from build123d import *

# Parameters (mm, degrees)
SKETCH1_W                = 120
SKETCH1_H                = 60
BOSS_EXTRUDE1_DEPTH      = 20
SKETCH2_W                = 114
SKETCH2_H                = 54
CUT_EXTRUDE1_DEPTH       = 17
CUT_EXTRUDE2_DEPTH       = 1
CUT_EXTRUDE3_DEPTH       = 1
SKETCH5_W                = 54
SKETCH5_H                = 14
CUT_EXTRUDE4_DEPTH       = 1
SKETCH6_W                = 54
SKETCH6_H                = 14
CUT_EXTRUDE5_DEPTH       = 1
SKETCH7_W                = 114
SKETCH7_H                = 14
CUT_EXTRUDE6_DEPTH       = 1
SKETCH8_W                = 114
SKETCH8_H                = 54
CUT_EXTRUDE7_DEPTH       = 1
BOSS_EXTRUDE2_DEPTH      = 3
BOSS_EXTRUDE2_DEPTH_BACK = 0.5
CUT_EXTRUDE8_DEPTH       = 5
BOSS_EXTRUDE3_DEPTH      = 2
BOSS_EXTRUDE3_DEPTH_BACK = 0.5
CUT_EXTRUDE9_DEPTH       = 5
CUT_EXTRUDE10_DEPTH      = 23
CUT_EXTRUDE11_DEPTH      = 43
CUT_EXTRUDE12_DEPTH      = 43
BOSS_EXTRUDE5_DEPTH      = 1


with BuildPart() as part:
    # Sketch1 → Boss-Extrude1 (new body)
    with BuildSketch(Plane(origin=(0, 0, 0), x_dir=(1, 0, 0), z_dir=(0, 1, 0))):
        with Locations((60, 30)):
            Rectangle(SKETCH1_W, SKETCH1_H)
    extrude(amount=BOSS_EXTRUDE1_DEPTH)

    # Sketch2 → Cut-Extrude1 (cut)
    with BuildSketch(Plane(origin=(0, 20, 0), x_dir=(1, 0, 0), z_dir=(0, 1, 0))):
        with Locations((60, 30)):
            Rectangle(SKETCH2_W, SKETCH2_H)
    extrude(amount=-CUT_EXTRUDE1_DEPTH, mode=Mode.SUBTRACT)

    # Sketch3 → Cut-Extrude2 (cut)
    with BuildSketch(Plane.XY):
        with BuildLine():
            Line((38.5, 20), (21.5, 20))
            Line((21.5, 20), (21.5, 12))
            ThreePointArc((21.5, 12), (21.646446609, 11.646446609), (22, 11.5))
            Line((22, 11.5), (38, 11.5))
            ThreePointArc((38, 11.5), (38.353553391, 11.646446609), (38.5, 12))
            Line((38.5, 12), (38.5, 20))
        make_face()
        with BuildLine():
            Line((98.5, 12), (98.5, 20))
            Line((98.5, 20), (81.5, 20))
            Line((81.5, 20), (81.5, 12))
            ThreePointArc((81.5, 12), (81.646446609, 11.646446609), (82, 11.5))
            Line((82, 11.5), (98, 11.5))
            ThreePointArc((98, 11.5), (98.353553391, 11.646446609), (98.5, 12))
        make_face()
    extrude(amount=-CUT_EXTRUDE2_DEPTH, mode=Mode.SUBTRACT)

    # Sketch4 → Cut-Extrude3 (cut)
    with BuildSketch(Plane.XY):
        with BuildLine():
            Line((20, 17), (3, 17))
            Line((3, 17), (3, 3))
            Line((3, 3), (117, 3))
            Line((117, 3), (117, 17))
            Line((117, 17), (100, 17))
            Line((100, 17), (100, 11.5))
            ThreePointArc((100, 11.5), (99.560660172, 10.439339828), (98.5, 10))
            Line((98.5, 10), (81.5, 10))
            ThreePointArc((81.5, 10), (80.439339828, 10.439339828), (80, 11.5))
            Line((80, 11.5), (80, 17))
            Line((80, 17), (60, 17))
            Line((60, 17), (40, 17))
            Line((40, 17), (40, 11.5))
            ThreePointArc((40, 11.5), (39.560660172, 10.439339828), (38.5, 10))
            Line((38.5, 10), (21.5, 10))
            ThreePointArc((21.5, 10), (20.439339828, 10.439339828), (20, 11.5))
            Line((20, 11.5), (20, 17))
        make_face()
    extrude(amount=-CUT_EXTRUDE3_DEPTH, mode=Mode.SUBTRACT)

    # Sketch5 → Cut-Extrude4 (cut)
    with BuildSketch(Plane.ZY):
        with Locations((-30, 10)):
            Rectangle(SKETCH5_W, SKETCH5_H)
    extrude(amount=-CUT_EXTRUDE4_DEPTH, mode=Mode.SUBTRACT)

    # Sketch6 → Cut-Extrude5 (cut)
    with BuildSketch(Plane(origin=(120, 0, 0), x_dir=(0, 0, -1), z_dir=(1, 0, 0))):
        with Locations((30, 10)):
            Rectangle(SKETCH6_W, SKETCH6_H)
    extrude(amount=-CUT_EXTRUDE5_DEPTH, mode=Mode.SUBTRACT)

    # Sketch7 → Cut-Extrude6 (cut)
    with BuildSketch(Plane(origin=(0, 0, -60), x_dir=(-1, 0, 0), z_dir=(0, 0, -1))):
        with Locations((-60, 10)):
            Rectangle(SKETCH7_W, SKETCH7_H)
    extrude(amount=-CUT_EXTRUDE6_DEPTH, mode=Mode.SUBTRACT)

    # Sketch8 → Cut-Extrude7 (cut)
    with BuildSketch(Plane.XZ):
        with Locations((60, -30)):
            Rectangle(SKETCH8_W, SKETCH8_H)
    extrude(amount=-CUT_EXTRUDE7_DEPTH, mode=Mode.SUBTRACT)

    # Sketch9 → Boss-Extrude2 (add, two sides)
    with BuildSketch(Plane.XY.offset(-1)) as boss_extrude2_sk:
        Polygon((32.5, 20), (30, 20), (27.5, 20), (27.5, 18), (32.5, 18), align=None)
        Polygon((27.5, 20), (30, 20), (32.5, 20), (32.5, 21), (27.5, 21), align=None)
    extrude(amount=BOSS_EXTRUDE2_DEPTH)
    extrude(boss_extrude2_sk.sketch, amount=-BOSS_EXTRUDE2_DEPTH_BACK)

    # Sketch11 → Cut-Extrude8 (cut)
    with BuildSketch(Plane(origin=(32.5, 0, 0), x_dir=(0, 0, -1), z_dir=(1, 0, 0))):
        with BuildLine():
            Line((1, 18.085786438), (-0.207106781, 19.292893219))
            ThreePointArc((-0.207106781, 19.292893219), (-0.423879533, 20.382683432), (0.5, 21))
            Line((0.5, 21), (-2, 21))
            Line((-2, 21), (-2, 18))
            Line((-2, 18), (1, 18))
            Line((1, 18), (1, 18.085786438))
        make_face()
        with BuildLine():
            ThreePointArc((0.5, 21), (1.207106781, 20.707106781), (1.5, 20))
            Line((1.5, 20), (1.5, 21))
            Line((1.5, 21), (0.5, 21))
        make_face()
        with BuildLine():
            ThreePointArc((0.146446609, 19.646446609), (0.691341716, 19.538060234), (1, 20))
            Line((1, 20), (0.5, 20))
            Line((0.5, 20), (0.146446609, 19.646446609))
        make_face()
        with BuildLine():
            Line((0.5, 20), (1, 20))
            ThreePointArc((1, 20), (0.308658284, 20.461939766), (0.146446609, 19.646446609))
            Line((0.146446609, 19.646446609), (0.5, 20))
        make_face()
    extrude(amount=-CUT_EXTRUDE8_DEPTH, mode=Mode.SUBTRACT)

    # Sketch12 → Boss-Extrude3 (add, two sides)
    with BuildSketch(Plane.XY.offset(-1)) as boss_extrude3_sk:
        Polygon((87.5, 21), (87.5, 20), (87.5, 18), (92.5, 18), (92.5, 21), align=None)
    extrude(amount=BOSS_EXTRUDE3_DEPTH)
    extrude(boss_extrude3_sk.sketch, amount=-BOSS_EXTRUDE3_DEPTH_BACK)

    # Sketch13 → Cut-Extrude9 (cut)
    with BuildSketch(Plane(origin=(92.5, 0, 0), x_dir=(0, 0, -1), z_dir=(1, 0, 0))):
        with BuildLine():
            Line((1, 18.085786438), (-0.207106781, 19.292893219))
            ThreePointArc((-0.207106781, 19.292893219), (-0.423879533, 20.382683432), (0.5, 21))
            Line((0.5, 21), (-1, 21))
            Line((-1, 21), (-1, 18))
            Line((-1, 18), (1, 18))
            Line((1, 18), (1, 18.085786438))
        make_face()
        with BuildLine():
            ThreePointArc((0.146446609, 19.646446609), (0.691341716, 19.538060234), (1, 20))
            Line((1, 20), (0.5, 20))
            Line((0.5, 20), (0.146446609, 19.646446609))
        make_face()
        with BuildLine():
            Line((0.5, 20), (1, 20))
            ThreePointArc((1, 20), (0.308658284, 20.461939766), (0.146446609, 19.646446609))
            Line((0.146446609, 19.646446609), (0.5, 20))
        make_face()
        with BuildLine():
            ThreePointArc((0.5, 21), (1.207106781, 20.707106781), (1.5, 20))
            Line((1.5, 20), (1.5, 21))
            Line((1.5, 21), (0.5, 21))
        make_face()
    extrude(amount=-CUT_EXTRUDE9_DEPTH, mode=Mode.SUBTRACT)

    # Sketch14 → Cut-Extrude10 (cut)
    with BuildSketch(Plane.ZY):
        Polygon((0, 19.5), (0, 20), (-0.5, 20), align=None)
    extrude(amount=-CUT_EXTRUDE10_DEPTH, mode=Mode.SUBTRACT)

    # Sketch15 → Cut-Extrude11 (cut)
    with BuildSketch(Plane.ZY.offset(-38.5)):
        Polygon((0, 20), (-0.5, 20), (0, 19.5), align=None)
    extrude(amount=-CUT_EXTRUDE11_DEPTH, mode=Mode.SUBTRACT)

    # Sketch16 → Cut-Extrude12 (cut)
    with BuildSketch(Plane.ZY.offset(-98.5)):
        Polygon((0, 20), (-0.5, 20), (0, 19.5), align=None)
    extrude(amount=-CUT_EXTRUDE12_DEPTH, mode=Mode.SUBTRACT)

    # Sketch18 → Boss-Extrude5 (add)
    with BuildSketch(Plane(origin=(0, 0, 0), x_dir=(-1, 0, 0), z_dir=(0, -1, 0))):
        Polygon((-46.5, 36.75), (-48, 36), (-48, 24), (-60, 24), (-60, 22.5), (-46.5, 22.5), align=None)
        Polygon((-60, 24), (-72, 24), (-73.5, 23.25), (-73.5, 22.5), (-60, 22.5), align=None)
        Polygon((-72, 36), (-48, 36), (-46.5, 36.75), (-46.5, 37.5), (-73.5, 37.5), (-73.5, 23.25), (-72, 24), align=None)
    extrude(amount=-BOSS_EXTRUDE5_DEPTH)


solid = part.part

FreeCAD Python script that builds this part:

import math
import FreeCAD as App
import Part
import Sketcher
Q = App.Units.Quantity


def add_polygon(sketch, points):
    """Adds a closed chain of lines whose ends are joined by coincident constraints."""
    first, n = sketch.GeometryCount, len(points)
    for a, b in zip(points, points[1:] + points[:1]):
        sketch.addGeometry(Part.LineSegment(App.Vector(*a, 0), App.Vector(*b, 0)), False)
    for i in range(n):
        sketch.addConstraint(Sketcher.Constraint("Coincident", first + i, 2, first + (i + 1) % n, 1))

doc = App.newDocument("Part")
body = doc.addObject("PartDesign::Body", "Body")

sketch1 = body.newObject("Sketcher::SketchObject", "Sketch")
sketch1.AttachmentSupport = (doc.getObject("XZ_Plane"), [""])
sketch1.MapMode = "FlatFace"
add_polygon(sketch1, [(0, -60), (0, 0), (120, 0), (120, -60)])
sketch1.addConstraint([
    Sketcher.Constraint("Vertical", 0),
    Sketcher.Constraint("Horizontal", 1),
    Sketcher.Constraint("Vertical", 2),
    Sketcher.Constraint("Horizontal", 3),
    Sketcher.Constraint("Coincident", 0, 2, -1, 1),
    Sketcher.Constraint("DistanceX", 1, 1, 1, 2, Q("120 mm")),
    Sketcher.Constraint("DistanceY", 0, 1, 0, 2, Q("60 mm")),
])
pad1 = body.newObject("PartDesign::Pad", "Pad")
pad1.Profile = sketch1
pad1.Length = 20
pad1.Reversed = True

sketch2 = body.newObject("Sketcher::SketchObject", "Sketch001")
sketch2.AttachmentSupport = (doc.getObject("XZ_Plane"), [""])
sketch2.MapMode = "FlatFace"
sketch2.AttachmentOffset = App.Placement(App.Vector(0, 0, -20), App.Rotation())
add_polygon(sketch2, [(3, -57), (3, -3), (117, -3), (117, -57)])
sketch2.addConstraint([
    Sketcher.Constraint("Vertical", 0),
    Sketcher.Constraint("Horizontal", 1),
    Sketcher.Constraint("Vertical", 2),
    Sketcher.Constraint("Horizontal", 3),
    Sketcher.Constraint("DistanceX", 1, 1, 1, 2, Q("114 mm")),
    Sketcher.Constraint("DistanceY", 0, 1, 0, 2, Q("54 mm")),
    Sketcher.Constraint("DistanceX", -1, 1, 0, 2, Q("3 mm")),
    Sketcher.Constraint("DistanceY", 0, 2, -1, 1, Q("3 mm")),
])
pocket1 = body.newObject("PartDesign::Pocket", "Pocket")
pocket1.Profile = sketch2
pocket1.Length = 17
pocket1.Reversed = True

sketch3 = body.newObject("Sketcher::SketchObject", "Sketch002")
sketch3.AttachmentSupport = (doc.getObject("XY_Plane"), [""])
sketch3.MapMode = "FlatFace"
sketch3.addGeometry([
    Part.LineSegment(App.Vector(38.5, 20, 0), App.Vector(21.5, 20, 0)),
    Part.LineSegment(App.Vector(21.5, 20, 0), App.Vector(21.5, 12, 0)),
    Part.ArcOfCircle(Part.Circle(App.Vector(22, 12, 0), App.Vector(0, 0, 1), 0.5), math.radians(180), math.radians(270)),
    Part.LineSegment(App.Vector(22, 11.5, 0), App.Vector(38, 11.5, 0)),
    Part.ArcOfCircle(Part.Circle(App.Vector(38, 12, 0), App.Vector(0, 0, 1), 0.5), math.radians(-90), math.radians(0)),
    Part.LineSegment(App.Vector(38.5, 12, 0), App.Vector(38.5, 20, 0)),
    Part.LineSegment(App.Vector(98.5, 12, 0), App.Vector(98.5, 20, 0)),
    Part.LineSegment(App.Vector(98.5, 20, 0), App.Vector(81.5, 20, 0)),
    Part.LineSegment(App.Vector(81.5, 20, 0), App.Vector(81.5, 12, 0)),
    Part.ArcOfCircle(Part.Circle(App.Vector(82, 12, 0), App.Vector(0, 0, 1), 0.5), math.radians(180), math.radians(270)),
    Part.LineSegment(App.Vector(82, 11.5, 0), App.Vector(98, 11.5, 0)),
    Part.ArcOfCircle(Part.Circle(App.Vector(98, 12, 0), App.Vector(0, 0, 1), 0.5), math.radians(-90), math.radians(0)),
], False)
sketch3.addConstraint([
    Sketcher.Constraint("Coincident", 0, 2, 1, 1),
    Sketcher.Constraint("Tangent", 1, 2, 2, 1),
    Sketcher.Constraint("Tangent", 2, 2, 3, 1),
    Sketcher.Constraint("Tangent", 3, 2, 4, 1),
    Sketcher.Constraint("Tangent", 4, 2, 5, 1),
    Sketcher.Constraint("Coincident", 5, 2, 0, 1),
    Sketcher.Constraint("Coincident", 6, 2, 7, 1),
    Sketcher.Constraint("Coincident", 7, 2, 8, 1),
    Sketcher.Constraint("Tangent", 8, 2, 9, 1),
    Sketcher.Constraint("Tangent", 9, 2, 10, 1),
    Sketcher.Constraint("Tangent", 10, 2, 11, 1),
    Sketcher.Constraint("Tangent", 11, 2, 6, 1),
    Sketcher.Constraint("Horizontal", 0),
    Sketcher.Constraint("Vertical", 1),
    Sketcher.Constraint("Horizontal", 3),
    Sketcher.Constraint("Vertical", 5),
    Sketcher.Constraint("Vertical", 6),
    Sketcher.Constraint("Horizontal", 7),
    Sketcher.Constraint("Vertical", 8),
    Sketcher.Constraint("Horizontal", 10),
    Sketcher.Constraint("Equal", 2, 4),
    Sketcher.Constraint("Equal", 4, 9),
    Sketcher.Constraint("Equal", 9, 11),
    Sketcher.Constraint("Horizontal", 4, 3, 9, 3),
    Sketcher.Constraint("Horizontal", 5, 2, 6, 2),
    Sketcher.Constraint("Equal", 0, 7),
    Sketcher.Constraint("Radius", 2, Q("0.5 mm")),
    Sketcher.Constraint("DistanceX", 0, 2, 0, 1, Q("17 mm")),
    Sketcher.Constraint("DistanceY", 1, 2, 1, 1, Q("8 mm")),
    Sketcher.Constraint("DistanceX", -1, 1, 2, 3, Q("22 mm")),
    Sketcher.Constraint("DistanceY", -1, 1, 2, 3, Q("12 mm")),
    Sketcher.Constraint("DistanceX", -1, 1, 9, 3, Q("82 mm")),
])
pocket2 = body.newObject("PartDesign::Pocket", "Pocket001")
pocket2.Profile = sketch3
pocket2.Length = 1

sketch4 = body.newObject("Sketcher::SketchObject", "Sketch003")
sketch4.AttachmentSupport = (doc.getObject("XY_Plane"), [""])
sketch4.MapMode = "FlatFace"
sketch4.addGeometry([
    Part.LineSegment(App.Vector(20, 17, 0), App.Vector(3, 17, 0)),
    Part.LineSegment(App.Vector(3, 17, 0), App.Vector(3, 3, 0)),
    Part.LineSegment(App.Vector(3, 3, 0), App.Vector(117, 3, 0)),
    Part.LineSegment(App.Vector(117, 3, 0), App.Vector(117, 17, 0)),
    Part.LineSegment(App.Vector(117, 17, 0), App.Vector(100, 17, 0)),
    Part.LineSegment(App.Vector(100, 17, 0), App.Vector(100, 11.5, 0)),
    Part.ArcOfCircle(Part.Circle(App.Vector(98.5, 11.5, 0), App.Vector(0, 0, 1), 1.5), math.radians(-90), math.radians(0)),
    Part.LineSegment(App.Vector(98.5, 10, 0), App.Vector(81.5, 10, 0)),
    Part.ArcOfCircle(Part.Circle(App.Vector(81.5, 11.5, 0), App.Vector(0, 0, 1), 1.5), math.radians(180), math.radians(270)),
    Part.LineSegment(App.Vector(80, 11.5, 0), App.Vector(80, 17, 0)),
    Part.LineSegment(App.Vector(80, 17, 0), App.Vector(40, 17, 0)),
    Part.LineSegment(App.Vector(40, 17, 0), App.Vector(40, 11.5, 0)),
    Part.ArcOfCircle(Part.Circle(App.Vector(38.5, 11.5, 0), App.Vector(0, 0, 1), 1.5), math.radians(-90), math.radians(0)),
    Part.LineSegment(App.Vector(38.5, 10, 0), App.Vector(21.5, 10, 0)),
    Part.ArcOfCircle(Part.Circle(App.Vector(21.5, 11.5, 0), App.Vector(0, 0, 1), 1.5), math.radians(180), math.radians(270)),
    Part.LineSegment(App.Vector(20, 11.5, 0), App.Vector(20, 17, 0)),
], False)
sketch4.addConstraint([
    Sketcher.Constraint("Coincident", 0, 2, 1, 1),
    Sketcher.Constraint("Coincident", 1, 2, 2, 1),
    Sketcher.Constraint("Coincident", 2, 2, 3, 1),
    Sketcher.Constraint("Coincident", 3, 2, 4, 1),
    Sketcher.Constraint("Coincident", 4, 2, 5, 1),
    Sketcher.Constraint("Tangent", 5, 2, 6, 2),
    Sketcher.Constraint("Tangent", 6, 1, 7, 1),
    Sketcher.Constraint("Tangent", 7, 2, 8, 2),
    Sketcher.Constraint("Tangent", 8, 1, 9, 1),
    Sketcher.Constraint("Coincident", 9, 2, 10, 1),
    Sketcher.Constraint("Coincident", 10, 2, 11, 1),
    Sketcher.Constraint("Tangent", 11, 2, 12, 2),
    Sketcher.Constraint("Tangent", 12, 1, 13, 1),
    Sketcher.Constraint("Tangent", 13, 2, 14, 2),
    Sketcher.Constraint("Tangent", 14, 1, 15, 1),
    Sketcher.Constraint("Coincident", 15, 2, 0, 1),
    Sketcher.Constraint("Horizontal", 0),
    Sketcher.Constraint("Vertical", 1),
    Sketcher.Constraint("Horizontal", 2),
    Sketcher.Constraint("Vertical", 3),
    Sketcher.Constraint("Horizontal", 4),
    Sketcher.Constraint("Vertical", 5),
    Sketcher.Constraint("Horizontal", 7),
    Sketcher.Constraint("Vertical", 9),
    Sketcher.Constraint("Horizontal", 10),
    Sketcher.Constraint("Vertical", 11),
    Sketcher.Constraint("Horizontal", 13),
    Sketcher.Constraint("Vertical", 15),
    Sketcher.Constraint("Equal", 6, 8),
    Sketcher.Constraint("Equal", 8, 12),
    Sketcher.Constraint("Equal", 12, 14),
    Sketcher.Constraint("Horizontal", 8, 3, 12, 3),
    Sketcher.Constraint("Horizontal", 0, 2, 3, 2),
    Sketcher.Constraint("Horizontal", 4, 2, 9, 2),
    Sketcher.Constraint("Equal", 0, 4),
    Sketcher.Constraint("Equal", 4, 7),
    Sketcher.Constraint("Equal", 7, 13),
    Sketcher.Constraint("Radius", 6, Q("1.5 mm")),
    Sketcher.Constraint("DistanceX", 0, 2, 0, 1, Q("17 mm")),
    Sketcher.Constraint("DistanceX", 2, 1, 2, 2, Q("114 mm")),
    Sketcher.Constraint("DistanceY", 1, 2, 1, 1, Q("14 mm")),
    Sketcher.Constraint("DistanceY", 5, 2, 5, 1, Q("5.5 mm")),
    Sketcher.Constraint("DistanceX", -1, 1, 0, 2, Q("3 mm")),
    Sketcher.Constraint("DistanceY", -1, 1, 0, 2, Q("17 mm")),
])
pocket3 = body.newObject("PartDesign::Pocket", "Pocket002")
pocket3.Profile = sketch4
pocket3.Length = 1

sketch5 = body.newObject("Sketcher::SketchObject", "Sketch004")
sketch5.AttachmentSupport = (doc.getObject("YZ_Plane"), [""])
sketch5.MapMode = "FlatFace"
add_polygon(sketch5, [(17, -57), (3, -57), (3, -3), (17, -3)])
sketch5.addConstraint([
    Sketcher.Constraint("Horizontal", 0),
    Sketcher.Constraint("Vertical", 1),
    Sketcher.Constraint("Horizontal", 2),
    Sketcher.Constraint("Vertical", 3),
    Sketcher.Constraint("DistanceX", 0, 2, 0, 1, Q("14 mm")),
    Sketcher.Constraint("DistanceY", 1, 1, 1, 2, Q("54 mm")),
    Sketcher.Constraint("DistanceX", -1, 1, 0, 2, Q("3 mm")),
    Sketcher.Constraint("DistanceY", 0, 2, -1, 1, Q("57 mm")),
])
pocket4 = body.newObject("PartDesign::Pocket", "Pocket003")
pocket4.Profile = sketch5
pocket4.Length = 1
pocket4.Reversed = True

sketch6 = body.newObject("Sketcher::SketchObject", "Sketch005")
sketch6.AttachmentSupport = (doc.getObject("YZ_Plane"), [""])
sketch6.MapMode = "FlatFace"
sketch6.AttachmentOffset = App.Placement(App.Vector(0, 0, 120), App.Rotation())
add_polygon(sketch6, [(17, -3), (3, -3), (3, -57), (17, -57)])
sketch6.addConstraint([
    Sketcher.Constraint("Horizontal", 0),
    Sketcher.Constraint("Vertical", 1),
    Sketcher.Constraint("Horizontal", 2),
    Sketcher.Constraint("Vertical", 3),
    Sketcher.Constraint("DistanceX", 0, 2, 0, 1, Q("14 mm")),
    Sketcher.Constraint("DistanceY", 1, 2, 1, 1, Q("54 mm")),
    Sketcher.Constraint("DistanceX", -1, 1, 0, 2, Q("3 mm")),
    Sketcher.Constraint("DistanceY", 0, 2, -1, 1, Q("3 mm")),
])
pocket5 = body.newObject("PartDesign::Pocket", "Pocket004")
pocket5.Profile = sketch6
pocket5.Length = 1

sketch7 = body.newObject("Sketcher::SketchObject", "Sketch006")
sketch7.AttachmentSupport = (doc.getObject("XY_Plane"), [""])
sketch7.MapMode = "FlatFace"
sketch7.AttachmentOffset = App.Placement(App.Vector(0, 0, -60), App.Rotation())
add_polygon(sketch7, [(117, 17), (117, 3), (3, 3), (3, 17)])
sketch7.addConstraint([
    Sketcher.Constraint("Vertical", 0),
    Sketcher.Constraint("Horizontal", 1),
    Sketcher.Constraint("Vertical", 2),
    Sketcher.Constraint("Horizontal", 3),
    Sketcher.Constraint("DistanceX", 1, 2, 1, 1, Q("114 mm")),
    Sketcher.Constraint("DistanceY", 0, 2, 0, 1, Q("14 mm")),
    Sketcher.Constraint("DistanceX", -1, 1, 0, 2, Q("117 mm")),
    Sketcher.Constraint("DistanceY", -1, 1, 0, 2, Q("3 mm")),
])
pocket6 = body.newObject("PartDesign::Pocket", "Pocket005")
pocket6.Profile = sketch7
pocket6.Length = 1
pocket6.Reversed = True

sketch8 = body.newObject("Sketcher::SketchObject", "Sketch007")
sketch8.AttachmentSupport = (doc.getObject("XZ_Plane"), [""])
sketch8.MapMode = "FlatFace"
add_polygon(sketch8, [(3, -3), (3, -57), (117, -57), (117, -3)])
sketch8.addConstraint([
    Sketcher.Constraint("Vertical", 0),
    Sketcher.Constraint("Horizontal", 1),
    Sketcher.Constraint("Vertical", 2),
    Sketcher.Constraint("Horizontal", 3),
    Sketcher.Constraint("DistanceX", 1, 1, 1, 2, Q("114 mm")),
    Sketcher.Constraint("DistanceY", 0, 2, 0, 1, Q("54 mm")),
    Sketcher.Constraint("DistanceX", -1, 1, 0, 2, Q("3 mm")),
    Sketcher.Constraint("DistanceY", 0, 2, -1, 1, Q("57 mm")),
])
pocket7 = body.newObject("PartDesign::Pocket", "Pocket006")
pocket7.Profile = sketch8
pocket7.Length = 1

sketch9 = body.newObject("Sketcher::SketchObject", "Sketch008")
sketch9.AttachmentSupport = (doc.getObject("XY_Plane"), [""])
sketch9.MapMode = "FlatFace"
sketch9.AttachmentOffset = App.Placement(App.Vector(0, 0, -1), App.Rotation())
add_polygon(sketch9, [(27.5, 18), (32.5, 18), (32.5, 21), (27.5, 21)])
sketch9.addConstraint([
    Sketcher.Constraint("Horizontal", 0),
    Sketcher.Constraint("Vertical", 1),
    Sketcher.Constraint("Horizontal", 2),
    Sketcher.Constraint("Vertical", 3),
    Sketcher.Constraint("DistanceX", 0, 1, 0, 2, Q("5 mm")),
    Sketcher.Constraint("DistanceY", 1, 1, 1, 2, Q("3 mm")),
    Sketcher.Constraint("DistanceY", -1, 1, 0, 2, Q("18 mm")),
    Sketcher.Constraint("DistanceX", -1, 1, 0, 2, Q("32.5 mm")),
])
pad2 = body.newObject("PartDesign::Pad", "Pad001")
pad2.Profile = sketch9
pad2.Type = "TwoLengths"
pad2.Length = 3
pad2.Length2 = 0.5

sketch10 = body.newObject("Sketcher::SketchObject", "Sketch009")
sketch10.AttachmentSupport = (doc.getObject("YZ_Plane"), [""])
sketch10.MapMode = "FlatFace"
sketch10.AttachmentOffset = App.Placement(App.Vector(0, 0, 32.5), App.Rotation())
sketch10.addGeometry([
    Part.LineSegment(App.Vector(18.09, -1, 0), App.Vector(19.29, 0.21, 0)),
    Part.ArcOfCircle(Part.Circle(App.Vector(20, -0.5, 0), App.Vector(0, 0, 1), 1), math.radians(0), math.radians(135)),
    Part.LineSegment(App.Vector(21, -0.5, 0), App.Vector(21, 2, 0)),
    Part.LineSegment(App.Vector(21, 2, 0), App.Vector(18, 2, 0)),
    Part.LineSegment(App.Vector(18, 2, 0), App.Vector(18, -1, 0)),
    Part.LineSegment(App.Vector(18, -1, 0), App.Vector(18.09, -1, 0)),
    Part.ArcOfCircle(Part.Circle(App.Vector(20, -0.5, 0), App.Vector(0, 0, 1), 1), math.radians(-90), math.radians(0)),
    Part.LineSegment(App.Vector(20, -1.5, 0), App.Vector(21, -1.5, 0)),
    Part.LineSegment(App.Vector(21, -1.5, 0), App.Vector(21, -0.5, 0)),
    Part.ArcOfCircle(Part.Circle(App.Vector(20, -0.5, 0), App.Vector(0, 0, 1), 0.5), math.radians(135), math.radians(270)),
    Part.ArcOfCircle(Part.Circle(App.Vector(20, -0.5, 0), App.Vector(0, 0, 1), 0.5), math.radians(-90), math.radians(135)),
], False)
sketch10.addConstraint([
    Sketcher.Constraint("Tangent", 0, 2, 1, 2),
    Sketcher.Constraint("Tangent", 1, 1, 2, 1),
    Sketcher.Constraint("Coincident", 2, 2, 3, 1),
    Sketcher.Constraint("Coincident", 3, 2, 4, 1),
    Sketcher.Constraint("Coincident", 4, 2, 5, 1),
    Sketcher.Constraint("Coincident", 5, 2, 0, 1),
    Sketcher.Constraint("Tangent", 6, 1, 7, 1),
    Sketcher.Constraint("Coincident", 7, 2, 8, 1),
    Sketcher.Constraint("Tangent", 8, 2, 6, 2),
    Sketcher.Constraint("Tangent", 9, 1, 10, 2),
    Sketcher.Constraint("Coincident", 10, 1, 9, 2),
    Sketcher.Constraint("Vertical", 2),
    Sketcher.Constraint("Horizontal", 3),
    Sketcher.Constraint("Vertical", 4),
    Sketcher.Constraint("Horizontal", 5),
    Sketcher.Constraint("Horizontal", 7),
    Sketcher.Constraint("Vertical", 8),
    Sketcher.Constraint("Coincident", 6, 3, 1, 3),
    Sketcher.Constraint("Coincident", 9, 3, 1, 3),
    Sketcher.Constraint("Equal", 1, 6),
    Sketcher.Constraint("Horizontal", 5, 2, 10, 1),
    Sketcher.Constraint("Vertical", 6, 1, 10, 1),
    Sketcher.Constraint("Equal", 3, 4),
    Sketcher.Constraint("Radius", 1, Q("1 mm")),
    Sketcher.Constraint("Radius", 9, Q("0.5 mm")),
    Sketcher.Constraint("DistanceX", 3, 2, 3, 1, Q("3 mm")),
    Sketcher.Constraint("Angle", 0, Q("45 deg")),
    Sketcher.Constraint("DistanceX", -1, 1, 1, 3, Q("20 mm")),
    Sketcher.Constraint("DistanceY", -1, 1, 2, 2, Q("2 mm")),
    Sketcher.Constraint("DistanceX", -1, 1, 9, 1, Q("19.646447 mm")),
])
pocket8 = body.newObject("PartDesign::Pocket", "Pocket007")
pocket8.Profile = sketch10
pocket8.Length = 5

sketch11 = body.newObject("Sketcher::SketchObject", "Sketch010")
sketch11.AttachmentSupport = (doc.getObject("XY_Plane"), [""])
sketch11.MapMode = "FlatFace"
sketch11.AttachmentOffset = App.Placement(App.Vector(0, 0, -1), App.Rotation())
add_polygon(sketch11, [(87.5, 21), (87.5, 18), (92.5, 18), (92.5, 21)])
sketch11.addConstraint([
    Sketcher.Constraint("Vertical", 0),
    Sketcher.Constraint("Horizontal", 1),
    Sketcher.Constraint("Vertical", 2),
    Sketcher.Constraint("Horizontal", 3),
    Sketcher.Constraint("DistanceX", 1, 1, 1, 2, Q("5 mm")),
    Sketcher.Constraint("DistanceY", 0, 2, 0, 1, Q("3 mm")),
    Sketcher.Constraint("DistanceY", -1, 1, 0, 2, Q("18 mm")),
    Sketcher.Constraint("DistanceX", -1, 1, 0, 2, Q("87.5 mm")),
])
pad3 = body.newObject("PartDesign::Pad", "Pad002")
pad3.Profile = sketch11
pad3.Type = "TwoLengths"
pad3.Length = 2
pad3.Length2 = 0.5

sketch12 = body.newObject("Sketcher::SketchObject", "Sketch011")
sketch12.AttachmentSupport = (doc.getObject("YZ_Plane"), [""])
sketch12.MapMode = "FlatFace"
sketch12.AttachmentOffset = App.Placement(App.Vector(0, 0, 92.5), App.Rotation())
sketch12.addGeometry([
    Part.LineSegment(App.Vector(18.09, -1, 0), App.Vector(19.29, 0.21, 0)),
    Part.ArcOfCircle(Part.Circle(App.Vector(20, -0.5, 0), App.Vector(0, 0, 1), 1), math.radians(0), math.radians(135)),
    Part.LineSegment(App.Vector(21, -0.5, 0), App.Vector(21, 1, 0)),
    Part.LineSegment(App.Vector(21, 1, 0), App.Vector(18, 1, 0)),
    Part.LineSegment(App.Vector(18, 1, 0), App.Vector(18, -1, 0)),
    Part.LineSegment(App.Vector(18, -1, 0), App.Vector(18.09, -1, 0)),
    Part.ArcOfCircle(Part.Circle(App.Vector(20, -0.5, 0), App.Vector(0, 0, 1), 0.5), math.radians(135), math.radians(270)),
    Part.ArcOfCircle(Part.Circle(App.Vector(20, -0.5, 0), App.Vector(0, 0, 1), 0.5), math.radians(-90), math.radians(135)),
    Part.ArcOfCircle(Part.Circle(App.Vector(20, -0.5, 0), App.Vector(0, 0, 1), 1), math.radians(-90), math.radians(0)),
    Part.LineSegment(App.Vector(20, -1.5, 0), App.Vector(21, -1.5, 0)),
    Part.LineSegment(App.Vector(21, -1.5, 0), App.Vector(21, -0.5, 0)),
], False)
sketch12.addConstraint([
    Sketcher.Constraint("Tangent", 0, 2, 1, 2),
    Sketcher.Constraint("Tangent", 1, 1, 2, 1),
    Sketcher.Constraint("Coincident", 2, 2, 3, 1),
    Sketcher.Constraint("Coincident", 3, 2, 4, 1),
    Sketcher.Constraint("Coincident", 4, 2, 5, 1),
    Sketcher.Constraint("Coincident", 5, 2, 0, 1),
    Sketcher.Constraint("Tangent", 6, 1, 7, 2),
    Sketcher.Constraint("Coincident", 7, 1, 6, 2),
    Sketcher.Constraint("Tangent", 8, 1, 9, 1),
    Sketcher.Constraint("Coincident", 9, 2, 10, 1),
    Sketcher.Constraint("Tangent", 10, 2, 8, 2),
    Sketcher.Constraint("Vertical", 2),
    Sketcher.Constraint("Horizontal", 3),
    Sketcher.Constraint("Vertical", 4),
    Sketcher.Constraint("Horizontal", 5),
    Sketcher.Constraint("Horizontal", 9),
    Sketcher.Constraint("Vertical", 10),
    Sketcher.Constraint("Coincident", 6, 3, 1, 3),
    Sketcher.Constraint("Coincident", 8, 3, 1, 3),
    Sketcher.Constraint("Equal", 1, 8),
    Sketcher.Constraint("Horizontal", 5, 2, 7, 1),
    Sketcher.Constraint("Vertical", 8, 3, 7, 1),
    Sketcher.Constraint("Radius", 1, Q("1 mm")),
    Sketcher.Constraint("Radius", 6, Q("0.5 mm")),
    Sketcher.Constraint("DistanceX", 3, 2, 3, 1, Q("3 mm")),
    Sketcher.Constraint("DistanceY", 4, 2, 4, 1, Q("2 mm")),
    Sketcher.Constraint("Angle", 0, Q("45 deg")),
    Sketcher.Constraint("DistanceX", -1, 1, 1, 3, Q("20 mm")),
    Sketcher.Constraint("DistanceY", -1, 1, 2, 2, Q("1 mm")),
    Sketcher.Constraint("DistanceX", -1, 1, 6, 1, Q("19.646447 mm")),
])
pocket9 = body.newObject("PartDesign::Pocket", "Pocket008")
pocket9.Profile = sketch12
pocket9.Length = 5

sketch13 = body.newObject("Sketcher::SketchObject", "Sketch012")
sketch13.AttachmentSupport = (doc.getObject("YZ_Plane"), [""])
sketch13.MapMode = "FlatFace"
add_polygon(sketch13, [(19.5, 0), (20, 0), (20, -0.5)])
sketch13.addConstraint([
    Sketcher.Constraint("Horizontal", 0),
    Sketcher.Constraint("Vertical", 1),
    Sketcher.Constraint("PointOnObject", 0, 2, -1),
    Sketcher.Constraint("Equal", 0, 1),
    Sketcher.Constraint("DistanceX", 0, 1, 0, 2, Q("0.5 mm")),
    Sketcher.Constraint("DistanceX", -1, 1, 0, 2, Q("20 mm")),
])
pocket10 = body.newObject("PartDesign::Pocket", "Pocket009")
pocket10.Profile = sketch13
pocket10.Length = 23
pocket10.Reversed = True

sketch14 = body.newObject("Sketcher::SketchObject", "Sketch013")
sketch14.AttachmentSupport = (doc.getObject("YZ_Plane"), [""])
sketch14.MapMode = "FlatFace"
sketch14.AttachmentOffset = App.Placement(App.Vector(0, 0, 38.5), App.Rotation())
add_polygon(sketch14, [(20, 0), (20, -0.5), (19.5, 0)])
sketch14.addConstraint([
    Sketcher.Constraint("Vertical", 0),
    Sketcher.Constraint("Horizontal", 2),
    Sketcher.Constraint("PointOnObject", 1, 2, -1),
    Sketcher.Constraint("Equal", 2, 0),
    Sketcher.Constraint("DistanceX", 2, 1, 2, 2, Q("0.5 mm")),
    Sketcher.Constraint("DistanceX", -1, 1, 0, 2, Q("20 mm")),
])
pocket11 = body.newObject("PartDesign::Pocket", "Pocket010")
pocket11.Profile = sketch14
pocket11.Length = 43
pocket11.Reversed = True

sketch15 = body.newObject("Sketcher::SketchObject", "Sketch014")
sketch15.AttachmentSupport = (doc.getObject("YZ_Plane"), [""])
sketch15.MapMode = "FlatFace"
sketch15.AttachmentOffset = App.Placement(App.Vector(0, 0, 98.5), App.Rotation())
add_polygon(sketch15, [(20, 0), (20, -0.5), (19.5, 0)])
sketch15.addConstraint([
    Sketcher.Constraint("Vertical", 0),
    Sketcher.Constraint("Horizontal", 2),
    Sketcher.Constraint("PointOnObject", 1, 2, -1),
    Sketcher.Constraint("Equal", 2, 0),
    Sketcher.Constraint("DistanceX", 2, 1, 2, 2, Q("0.5 mm")),
    Sketcher.Constraint("DistanceX", -1, 1, 0, 2, Q("20 mm")),
])
pocket12 = body.newObject("PartDesign::Pocket", "Pocket011")
pocket12.Profile = sketch15
pocket12.Length = 43
pocket12.Reversed = True

sketch16 = body.newObject("Sketcher::SketchObject", "Sketch015")
sketch16.AttachmentSupport = (doc.getObject("XZ_Plane"), [""])
sketch16.MapMode = "FlatFace"
add_polygon(sketch16, [(74, -22), (46, -22), (46, -38), (74, -38)])
add_polygon(sketch16, [(48, -36), (48, -24), (72, -24), (72, -36)])
sketch16.addConstraint([
    Sketcher.Constraint("Horizontal", 0),
    Sketcher.Constraint("Vertical", 1),
    Sketcher.Constraint("Horizontal", 2),
    Sketcher.Constraint("Vertical", 3),
    Sketcher.Constraint("Vertical", 4),
    Sketcher.Constraint("Horizontal", 5),
    Sketcher.Constraint("Vertical", 6),
    Sketcher.Constraint("Horizontal", 7),
    Sketcher.Constraint("DistanceX", 0, 2, 0, 1, Q("27 mm")),
    Sketcher.Constraint("DistanceX", 5, 1, 5, 2, Q("24 mm")),
    Sketcher.Constraint("DistanceY", 1, 2, 1, 1, Q("15 mm")),
    Sketcher.Constraint("DistanceY", 4, 1, 4, 2, Q("12 mm")),
    Sketcher.Constraint("DistanceX", -1, 1, 4, 2, Q("48 mm")),
    Sketcher.Constraint("DistanceY", 4, 2, -1, 1, Q("24 mm")),
    Sketcher.Constraint("DistanceX", -1, 1, 0, 2, Q("46.5 mm")),
    Sketcher.Constraint("DistanceY", 0, 2, -1, 1, Q("22.5 mm")),
])
pad4 = body.newObject("PartDesign::Pad", "Pad003")
pad4.Profile = sketch16
pad4.Length = 1
pad4.Reversed = True

doc.recompute()
